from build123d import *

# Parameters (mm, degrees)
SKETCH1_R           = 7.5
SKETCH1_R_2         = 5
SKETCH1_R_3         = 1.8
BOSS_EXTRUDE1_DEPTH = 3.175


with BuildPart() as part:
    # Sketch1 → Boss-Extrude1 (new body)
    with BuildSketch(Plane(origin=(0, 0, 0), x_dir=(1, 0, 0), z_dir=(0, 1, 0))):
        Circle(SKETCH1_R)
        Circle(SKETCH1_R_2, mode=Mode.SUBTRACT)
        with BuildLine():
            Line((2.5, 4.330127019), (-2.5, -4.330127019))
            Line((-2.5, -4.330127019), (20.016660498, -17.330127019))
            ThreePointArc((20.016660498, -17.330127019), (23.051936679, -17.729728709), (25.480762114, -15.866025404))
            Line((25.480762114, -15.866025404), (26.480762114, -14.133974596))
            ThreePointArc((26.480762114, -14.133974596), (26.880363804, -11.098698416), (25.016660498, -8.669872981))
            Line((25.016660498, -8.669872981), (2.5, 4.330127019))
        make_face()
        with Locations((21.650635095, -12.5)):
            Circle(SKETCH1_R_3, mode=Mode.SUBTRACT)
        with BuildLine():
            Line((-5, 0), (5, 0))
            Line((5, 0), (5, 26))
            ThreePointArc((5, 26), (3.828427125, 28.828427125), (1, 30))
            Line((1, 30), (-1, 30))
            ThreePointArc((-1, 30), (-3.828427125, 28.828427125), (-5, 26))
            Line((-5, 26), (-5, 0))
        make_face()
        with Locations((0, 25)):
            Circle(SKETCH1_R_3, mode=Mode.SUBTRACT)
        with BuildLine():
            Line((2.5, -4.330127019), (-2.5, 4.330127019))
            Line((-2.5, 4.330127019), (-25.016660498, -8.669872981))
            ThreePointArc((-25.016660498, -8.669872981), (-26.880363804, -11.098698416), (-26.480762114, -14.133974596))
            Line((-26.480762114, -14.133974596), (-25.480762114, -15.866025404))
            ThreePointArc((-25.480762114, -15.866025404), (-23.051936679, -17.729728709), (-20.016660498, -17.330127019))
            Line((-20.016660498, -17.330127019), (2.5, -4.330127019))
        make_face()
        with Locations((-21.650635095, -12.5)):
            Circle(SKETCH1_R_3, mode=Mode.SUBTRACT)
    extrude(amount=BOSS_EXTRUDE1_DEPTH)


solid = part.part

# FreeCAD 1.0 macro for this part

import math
import FreeCAD as App
import Part
import Sketcher
from FreeCAD import Vector
Q = App.Units.Quantity

doc = App.newDocument("Part")
params = doc.addObject("Spreadsheet::Sheet", "Params")
for row, (alias, value) in enumerate([
    ("sketch1_radius", "4 mm"),
    ("sketch1_diameter", "3.6 mm"),
    ("sketch1_radius2", "7.5 mm"),
    ("sketch1_width", "2 mm"),
    ("sketch1_length", "2 mm"),
    ("pad1_length", "3.175 mm"),
], start=1):
    params.set(f"A{row}", alias)
    params.set(f"B{row}", "=" + value)
    params.setAlias(f"B{row}", alias)

body = doc.addObject("PartDesign::Body", "Body")

sketch1 = doc.addObject("Sketcher::SketchObject", "Sketch")
body.addObject(sketch1)
sketch1.AttachmentSupport = (doc.XZ_Plane, [""])
sketch1.MapMode = "FlatFace"
sketch1.addGeometry([
    Part.LineSegment(Vector(25.5, 15.9, 0), Vector(26.5, 14.1, 0)),
    Part.ArcOfCircle(Part.Circle(Vector(23, 12.1, 0), Vector(0, 0, 1), 4), math.radians(-60), math.radians(30)),
    Part.LineSegment(Vector(25, 8.7, 0), Vector(7.3, -1.5, 0)),
    Part.ArcOfCircle(Part.Circle(Vector(0, 0, 0), Vector(0, 0, 1), 7.5), math.radians(-48), math.radians(-12)),
    Part.LineSegment(Vector(5, -5.6, 0), Vector(5, -26, 0)),
    Part.ArcOfCircle(Part.Circle(Vector(1, -26, 0), Vector(0, 0, 1), 4), math.radians(-90), math.radians(0)),
    Part.LineSegment(Vector(1, -30, 0), Vector(-1, -30, 0)),
    Part.ArcOfCircle(Part.Circle(Vector(-1, -26, 0), Vector(0, 0, 1), 4), math.radians(180), math.radians(270)),
    Part.LineSegment(Vector(-5, -26, 0), Vector(-5, -5.6, 0)),
    Part.ArcOfCircle(Part.Circle(Vector(0, 0, 0), Vector(0, 0, 1), 7.5), math.radians(-168), math.radians(-132)),
    Part.LineSegment(Vector(-7.3, -1.5, 0), Vector(-25, 8.7, 0)),
    Part.ArcOfCircle(Part.Circle(Vector(-23, 12.1, 0), Vector(0, 0, 1), 4), math.radians(150), math.radians(240)),
    Part.LineSegment(Vector(-26.5, 14.1, 0), Vector(-25.5, 15.9, 0)),
    Part.ArcOfCircle(Part.Circle(Vector(-22, 13.9, 0), Vector(0, 0, 1), 4), math.radians(60), math.radians(150)),
    Part.LineSegment(Vector(-20, 17.3, 0), Vector(-2.3, 7.1, 0)),
    Part.ArcOfCircle(Part.Circle(Vector(0, 0, 0), Vector(0, 0, 1), 7.5), math.radians(72), math.radians(108)),
    Part.LineSegment(Vector(2.3, 7.1, 0), Vector(20, 17.3, 0)),
    Part.ArcOfCircle(Part.Circle(Vector(22, 13.9, 0), Vector(0, 0, 1), 4), math.radians(30), math.radians(120)),
    Part.Circle(Vector(-21.7, 12.5, 0), Vector(0, 0, 1), 1.8),
    Part.Circle(Vector(21.7, 12.5, 0), Vector(0, 0, 1), 1.8),
    Part.Circle(Vector(0, -25, 0), Vector(0, 0, 1), 1.8),
], False)
sketch1.addConstraint([
    Sketcher.Constraint("Tangent", 0, 2, 1, 2),
    Sketcher.Constraint("Tangent", 1, 1, 2, 1),
    Sketcher.Constraint("Coincident", 2, 2, 3, 2),
    Sketcher.Constraint("Coincident", 3, 1, 4, 1),
    Sketcher.Constraint("Tangent", 4, 2, 5, 2),
    Sketcher.Constraint("Tangent", 5, 1, 6, 1),
    Sketcher.Constraint("Tangent", 6, 2, 7, 2),
    Sketcher.Constraint("Tangent", 7, 1, 8, 1),
    Sketcher.Constraint("Coincident", 8, 2, 9, 2),
    Sketcher.Constraint("Coincident", 9, 1, 10, 1),
    Sketcher.Constraint("Tangent", 10, 2, 11, 2),
    Sketcher.Constraint("Tangent", 11, 1, 12, 1),
    Sketcher.Constraint("Tangent", 12, 2, 13, 2),
    Sketcher.Constraint("Tangent", 13, 1, 14, 1),
    Sketcher.Constraint("Coincident", 14, 2, 15, 2),
    Sketcher.Constraint("Coincident", 15, 1, 16, 1),
    Sketcher.Constraint("Tangent", 16, 2, 17, 2),
    Sketcher.Constraint("Tangent", 17, 1, 0, 1),
    Sketcher.Constraint("Vertical", 4),
    Sketcher.Constraint("Horizontal", 6),
    Sketcher.Constraint("Vertical", 8),
    Sketcher.Constraint("Coincident", 3, 3, -1, 1),
    Sketcher.Constraint("Coincident", 9, 3, -1, 1),
    Sketcher.Constraint("Coincident", 15, 3, -1, 1),
    Sketcher.Constraint("Equal", 1, 5),
    Sketcher.Constraint("Equal", 5, 7),
    Sketcher.Constraint("Equal", 3, 9),
    Sketcher.Constraint("Equal", 7, 11),
    Sketcher.Constraint("Equal", 11, 13),
    Sketcher.Constraint("Equal", 9, 15),
    Sketcher.Constraint("Equal", 13, 17),
    Sketcher.Constraint("Equal", 18, 19),
    Sketcher.Constraint("Equal", 19, 20),
    Sketcher.Constraint("Symmetric", 1, 3, 11, 3, -2),
    Sketcher.Constraint("Symmetric", 13, 3, 17, 3, -2),
    Sketcher.Constraint("Symmetric", 18, 3, 19, 3, -2),
    Sketcher.Constraint("PointOnObject", 20, 3, -2),
    Sketcher.Constraint("Perpendicular", 0, 2),
    Sketcher.Constraint("Perpendicular", 10, 12),
    Sketcher.Constraint("Perpendicular", 12, 14),
    Sketcher.Constraint("Parallel", 2, 16),
    Sketcher.Constraint("Horizontal", 3, 1, 8, 2),
    Sketcher.Constraint("Equal", 10, 14),
    Sketcher.Constraint("Radius", 1, Q("4 mm")),
    Sketcher.Constraint("Diameter", 18, Q("3.6 mm")),
    Sketcher.Constraint("Radius", 3, Q("7.5 mm")),
    Sketcher.Constraint("DistanceX", 6, 2, 6, 1, Q("2 mm")),
    Sketcher.Constraint("Angle", 0, Q("-60 deg")),
    Sketcher.Constraint("Distance", 0, Q("2 mm")),
    Sketcher.Constraint("DistanceY", 5, 3, -1, 1, Q("26 mm")),
    Sketcher.Constraint("DistanceY", 20, 3, -1, 1, Q("25 mm")),
    Sketcher.Constraint("DistanceY", -1, 1, 18, 3, Q("12.5 mm")),
    Sketcher.Constraint("Distance", 2, Q("20.40983 mm")),
    Sketcher.Constraint("DistanceX", 18, 3, -1, 1, Q("21.650635 mm")),
])
sketch1.setExpression("Constraints[43]", "Params.sketch1_radius")
sketch1.setExpression("Constraints[44]", "Params.sketch1_diameter")
sketch1.setExpression("Constraints[45]", "Params.sketch1_radius2")
sketch1.setExpression("Constraints[46]", "Params.sketch1_width")
sketch1.setExpression("Constraints[48]", "Params.sketch1_length")
pad1 = doc.addObject("PartDesign::Pad", "Pad")
body.addObject(pad1)
pad1.Profile = sketch1
pad1.setExpression("Length", "Params.pad1_length")
pad1.Reversed = True

doc.recompute()
